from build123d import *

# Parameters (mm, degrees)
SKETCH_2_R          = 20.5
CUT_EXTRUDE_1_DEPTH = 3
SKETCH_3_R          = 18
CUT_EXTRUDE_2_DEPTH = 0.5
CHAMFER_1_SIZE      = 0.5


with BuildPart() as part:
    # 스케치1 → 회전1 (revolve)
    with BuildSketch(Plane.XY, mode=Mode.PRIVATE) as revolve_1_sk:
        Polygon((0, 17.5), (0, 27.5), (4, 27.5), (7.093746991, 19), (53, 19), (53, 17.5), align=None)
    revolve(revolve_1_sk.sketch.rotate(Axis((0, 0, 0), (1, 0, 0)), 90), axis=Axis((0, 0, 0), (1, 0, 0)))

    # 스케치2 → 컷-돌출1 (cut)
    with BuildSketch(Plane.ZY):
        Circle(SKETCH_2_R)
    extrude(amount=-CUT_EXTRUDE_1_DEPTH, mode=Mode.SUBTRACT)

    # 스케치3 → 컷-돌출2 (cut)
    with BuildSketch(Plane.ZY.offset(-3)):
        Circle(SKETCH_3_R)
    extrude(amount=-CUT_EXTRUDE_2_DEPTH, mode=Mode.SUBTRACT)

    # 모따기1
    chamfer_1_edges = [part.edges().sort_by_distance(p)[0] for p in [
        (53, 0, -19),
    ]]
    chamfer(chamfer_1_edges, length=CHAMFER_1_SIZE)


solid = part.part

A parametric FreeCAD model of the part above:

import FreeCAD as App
import Part
import Sketcher
from FreeCAD import Vector
Q = App.Units.Quantity


def edges_at(feature, points):
    """Names of the edges that pass closest to the given points."""
    edges = feature.Shape.Edges
    near = lambda p: min(range(len(edges)), key=lambda i: edges[i].distToShape(Part.Vertex(*p))[0])
    return sorted({f"Edge{near(p) + 1}" for p in points})


def add_polygon(sketch, points):
    """Adds a closed chain of lines whose ends are joined by coincident constraints."""
    first, n = sketch.GeometryCount, len(points)
    for a, b in zip(points, points[1:] + points[:1]):
        sketch.addGeometry(Part.LineSegment(App.Vector(*a, 0), App.Vector(*b, 0)), False)
    for i in range(n):
        sketch.addConstraint(Sketcher.Constraint("Coincident", first + i, 2, first + (i + 1) % n, 1))

doc = App.newDocument("Part")
params = doc.addObject("Spreadsheet::Sheet", "Params")
for row, (alias, value) in enumerate([
    ("sketch1_width", "53 mm"),
    ("sketch1_width2", "4 mm"),
    ("sketch1_height", "10 mm"),
    ("sketch1_height2", "1.5 mm"),
    ("revolution_angle", "360 deg"),
    ("sketch2_diameter", "41 mm"),
    ("pocket1_length", "3 mm"),
    ("sketch3_diameter", "36 mm"),
    ("pocket2_length", "0.5 mm"),
    ("chamfer_size", "0.5 mm"),
], start=1):
    params.set(f"A{row}", alias)
    params.set(f"B{row}", "=" + value)
    params.setAlias(f"B{row}", alias)

body = doc.addObject("PartDesign::Body", "Body")

sketch1 = doc.addObject("Sketcher::SketchObject", "Sketch")
body.addObject(sketch1)
sketch1.AttachmentSupport = (doc.XY_Plane, [""])
sketch1.MapMode = "FlatFace"
add_polygon(sketch1, [(0, 27.5), (0, 17.5), (53, 17.5), (53, 19), (7.1, 19), (4, 27.5)])
sketch1.addConstraint([
    Sketcher.Constraint("Vertical", 0),
    Sketcher.Constraint("Horizontal", 1),
    Sketcher.Constraint("Vertical", 2),
    Sketcher.Constraint("Horizontal", 3),
    Sketcher.Constraint("Horizontal", 5),
    Sketcher.Constraint("PointOnObject", 0, 2, -2),
    Sketcher.Constraint("DistanceX", 1, 1, 1, 2, 53.0),
    Sketcher.Constraint("DistanceX", 5, 2, 5, 1, 4.0),
    Sketcher.Constraint("DistanceY", 0, 2, 0, 1, 10.0),
    Sketcher.Constraint("Angle", 4, Q("110 deg")),
    Sketcher.Constraint("DistanceY", 2, 1, 2, 2, 1.5),
    Sketcher.Constraint("DistanceY", -1, 1, 2, 2, 19.0),
])
sketch1.setExpression("Constraints[12]", "Params.sketch1_width")
sketch1.setExpression("Constraints[13]", "Params.sketch1_width2")
sketch1.setExpression("Constraints[14]", "Params.sketch1_height")
sketch1.setExpression("Constraints[16]", "Params.sketch1_height2")
revolution = doc.addObject("PartDesign::Revolution", "Revolution")
body.addObject(revolution)
revolution.Profile = sketch1
revolution.ReferenceAxis = (sketch1, ["H_Axis"])
revolution.setExpression("Angle", "Params.revolution_angle")

sketch2 = doc.addObject("Sketcher::SketchObject", "Sketch001")
body.addObject(sketch2)
sketch2.AttachmentSupport = (doc.YZ_Plane, [""])
sketch2.MapMode = "FlatFace"
sketch2.addGeometry(Part.Circle(Vector(0, 0, 0), Vector(0, 0, 1), 20), False)
sketch2.addConstraint([
    Sketcher.Constraint("Coincident", 0, 3, -1, 1),
    Sketcher.Constraint("Diameter", 0, 41.0),
])
sketch2.setExpression("Constraints[1]", "Params.sketch2_diameter")
pocket1 = doc.addObject("PartDesign::Pocket", "Pocket")
body.addObject(pocket1)
pocket1.Profile = sketch2
pocket1.setExpression("Length", "Params.pocket1_length")
pocket1.Reversed = True

sketch3 = doc.addObject("Sketcher::SketchObject", "Sketch002")
body.addObject(sketch3)
sketch3.AttachmentSupport = (doc.YZ_Plane, [""])
sketch3.MapMode = "FlatFace"
sketch3.AttachmentOffset = App.Placement(Vector(0, 0, 3), App.Rotation())
sketch3.addGeometry(Part.Circle(Vector(0, 0, 0), Vector(0, 0, 1), 18), False)
sketch3.addConstraint([
    Sketcher.Constraint("Coincident", 0, 3, -1, 1),
    Sketcher.Constraint("Diameter", 0, 36.0),
])
sketch3.setExpression("Constraints[1]", "Params.sketch3_diameter")
pocket2 = doc.addObject("PartDesign::Pocket", "Pocket001")
body.addObject(pocket2)
pocket2.Profile = sketch3
pocket2.setExpression("Length", "Params.pocket2_length")
pocket2.Reversed = True
doc.recompute()

chamfer = doc.addObject("PartDesign::Chamfer", "Chamfer")
body.addObject(chamfer)
chamfer.Base = (pocket2, edges_at(pocket2, [(53, 0, -19)]))
chamfer.setExpression("Size", "Params.chamfer_size")

doc.recompute()
